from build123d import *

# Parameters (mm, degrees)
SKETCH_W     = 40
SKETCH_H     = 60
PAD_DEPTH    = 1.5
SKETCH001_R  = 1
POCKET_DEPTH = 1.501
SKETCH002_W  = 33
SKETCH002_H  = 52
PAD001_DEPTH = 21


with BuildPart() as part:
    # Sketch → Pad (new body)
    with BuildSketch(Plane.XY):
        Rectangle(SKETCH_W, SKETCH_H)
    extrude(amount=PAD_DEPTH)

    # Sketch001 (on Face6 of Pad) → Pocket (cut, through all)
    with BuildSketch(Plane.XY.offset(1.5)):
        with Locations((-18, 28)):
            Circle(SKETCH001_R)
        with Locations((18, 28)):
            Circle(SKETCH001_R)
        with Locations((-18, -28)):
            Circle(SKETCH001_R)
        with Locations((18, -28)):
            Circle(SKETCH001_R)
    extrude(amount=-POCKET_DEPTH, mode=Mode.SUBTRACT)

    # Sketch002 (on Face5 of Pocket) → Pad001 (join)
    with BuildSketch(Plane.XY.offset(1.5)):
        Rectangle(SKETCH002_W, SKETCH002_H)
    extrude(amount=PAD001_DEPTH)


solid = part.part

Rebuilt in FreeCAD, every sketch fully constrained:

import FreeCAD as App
import Part
import Sketcher
from FreeCAD import Vector


def add_polygon(sketch, points):
    """Adds a closed chain of lines whose ends are joined by coincident constraints."""
    first, n = sketch.GeometryCount, len(points)
    for a, b in zip(points, points[1:] + points[:1]):
        sketch.addGeometry(Part.LineSegment(App.Vector(*a, 0), App.Vector(*b, 0)), False)
    for i in range(n):
        sketch.addConstraint(Sketcher.Constraint("Coincident", first + i, 2, first + (i + 1) % n, 1))

doc = App.newDocument("Part")
body = doc.addObject("PartDesign::Body", "Body")

sketch1 = body.newObject("Sketcher::SketchObject", "Sketch")
sketch1.AttachmentSupport = (doc.getObject("XY_Plane"), [""])
sketch1.MapMode = "FlatFace"
add_polygon(sketch1, [(-20, 30), (-20, -30), (20, -30), (20, 30)])
sketch1.addConstraint(Sketcher.Constraint("Vertical", 0))
sketch1.addConstraint(Sketcher.Constraint("Horizontal", 1))
sketch1.addConstraint(Sketcher.Constraint("Vertical", 2))
sketch1.addConstraint(Sketcher.Constraint("Horizontal", 3))
sketch1.addConstraint(Sketcher.Constraint("Symmetric", 0, 2, 2, 2, -1, 1))
sketch1.addConstraint(Sketcher.Constraint("DistanceX", 1, 1, 1, 2, 40.0))
sketch1.addConstraint(Sketcher.Constraint("DistanceY", 0, 2, 0, 1, 60.0))
pad1 = body.newObject("PartDesign::Pad", "Pad")
pad1.Profile = sketch1
pad1.Length = 1.5

sketch2 = body.newObject("Sketcher::SketchObject", "Sketch001")
sketch2.AttachmentSupport = (doc.getObject("XY_Plane"), [""])
sketch2.MapMode = "FlatFace"
sketch2.AttachmentOffset = App.Placement(Vector(0, 0, 1.5), App.Rotation())
sketch2.addGeometry(Part.Circle(Vector(-18, 28, 0), Vector(0, 0, 1), 1), False)
sketch2.addGeometry(Part.Circle(Vector(18, 28, 0), Vector(0, 0, 1), 1), False)
sketch2.addGeometry(Part.Circle(Vector(-18, -28, 0), Vector(0, 0, 1), 1), False)
sketch2.addGeometry(Part.Circle(Vector(18, -28, 0), Vector(0, 0, 1), 1), False)
sketch2.addConstraint(Sketcher.Constraint("Equal", 0, 1))
sketch2.addConstraint(Sketcher.Constraint("Equal", 1, 2))
sketch2.addConstraint(Sketcher.Constraint("Equal", 2, 3))
sketch2.addConstraint(Sketcher.Constraint("Symmetric", 1, 3, 2, 3, -1, 1))
sketch2.addConstraint(Sketcher.Constraint("Symmetric", 0, 3, 3, 3, -1, 1))
sketch2.addConstraint(Sketcher.Constraint("Symmetric", 0, 3, 1, 3, -2))
sketch2.addConstraint(Sketcher.Constraint("Diameter", 0, 2.0))
sketch2.addConstraint(Sketcher.Constraint("DistanceX", 0, 3, -1, 1, 18.0))
sketch2.addConstraint(Sketcher.Constraint("DistanceY", -1, 1, 0, 3, 28.0))
pocket1 = body.newObject("PartDesign::Pocket", "Pocket")
pocket1.Profile = sketch2
pocket1.Type = "ThroughAll"

sketch3 = body.newObject("Sketcher::SketchObject", "Sketch002")
sketch3.AttachmentSupport = (doc.getObject("XY_Plane"), [""])
sketch3.MapMode = "FlatFace"
sketch3.AttachmentOffset = App.Placement(Vector(0, 0, 1.5), App.Rotation())
add_polygon(sketch3, [(-16, 26), (-16, -26), (16, -26), (16, 26)])
sketch3.addConstraint(Sketcher.Constraint("Vertical", 0))
sketch3.addConstraint(Sketcher.Constraint("Horizontal", 1))
sketch3.addConstraint(Sketcher.Constraint("Vertical", 2))
sketch3.addConstraint(Sketcher.Constraint("Horizontal", 3))
sketch3.addConstraint(Sketcher.Constraint("Symmetric", 0, 2, 2, 2, -1, 1))
sketch3.addConstraint(Sketcher.Constraint("DistanceX", 1, 1, 1, 2, 33.0))
sketch3.addConstraint(Sketcher.Constraint("DistanceY", 0, 2, 0, 1, 52.0))
pad2 = body.newObject("PartDesign::Pad", "Pad001")
pad2.Profile = sketch3
pad2.Length = 21

doc.recompute()
